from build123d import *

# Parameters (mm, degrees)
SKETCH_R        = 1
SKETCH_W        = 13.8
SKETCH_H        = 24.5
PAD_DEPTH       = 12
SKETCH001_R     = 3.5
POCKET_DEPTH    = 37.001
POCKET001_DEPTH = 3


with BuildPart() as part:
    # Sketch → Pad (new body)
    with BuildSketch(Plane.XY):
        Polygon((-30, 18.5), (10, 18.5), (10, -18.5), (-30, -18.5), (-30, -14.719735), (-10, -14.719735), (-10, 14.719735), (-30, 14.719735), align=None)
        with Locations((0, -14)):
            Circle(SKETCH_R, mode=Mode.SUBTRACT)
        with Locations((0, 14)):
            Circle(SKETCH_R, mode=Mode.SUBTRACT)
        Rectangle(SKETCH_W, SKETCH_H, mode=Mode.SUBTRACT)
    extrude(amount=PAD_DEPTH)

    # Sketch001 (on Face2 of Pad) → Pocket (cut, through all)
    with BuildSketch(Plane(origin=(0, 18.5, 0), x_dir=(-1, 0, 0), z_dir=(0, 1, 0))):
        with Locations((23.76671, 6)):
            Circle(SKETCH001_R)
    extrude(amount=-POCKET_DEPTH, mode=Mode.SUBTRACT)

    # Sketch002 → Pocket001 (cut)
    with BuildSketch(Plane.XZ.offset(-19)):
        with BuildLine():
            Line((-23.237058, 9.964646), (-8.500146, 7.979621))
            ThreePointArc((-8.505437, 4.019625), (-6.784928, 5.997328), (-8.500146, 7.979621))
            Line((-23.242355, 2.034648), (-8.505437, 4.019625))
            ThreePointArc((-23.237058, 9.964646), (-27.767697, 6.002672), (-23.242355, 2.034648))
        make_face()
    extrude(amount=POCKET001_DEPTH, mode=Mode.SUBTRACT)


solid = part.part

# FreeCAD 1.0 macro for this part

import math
import FreeCAD as App
import Part
import Sketcher


def add_polygon(sketch, points):
    """Adds a closed chain of lines whose ends are joined by coincident constraints."""
    first, n = sketch.GeometryCount, len(points)
    for a, b in zip(points, points[1:] + points[:1]):
        sketch.addGeometry(Part.LineSegment(App.Vector(*a, 0), App.Vector(*b, 0)), False)
    for i in range(n):
        sketch.addConstraint(Sketcher.Constraint("Coincident", first + i, 2, first + (i + 1) % n, 1))

doc = App.newDocument("Part")
params = doc.addObject("Spreadsheet::Sheet", "Params")
for row, (alias, value) in enumerate([
    ("sketch1_diameter", "2 mm"),
    ("sketch1_width", "40 mm"),
    ("sketch1_width2", "20 mm"),
    ("sketch1_height", "37 mm"),
    ("sketch1_width3", "13.8 mm"),
    ("pad1_length", "12 mm"),
    ("sketch2_diameter", "7 mm"),
    ("sketch3_radius", "4 mm"),
    ("sketch3_radius2", "2 mm"),
    ("sketch3_length", "14.87 mm"),
    ("pocket2_length", "3 mm"),
], start=1):
    params.set(f"A{row}", alias)
    params.set(f"B{row}", "=" + value)
    params.setAlias(f"B{row}", alias)

body = doc.addObject("PartDesign::Body", "Body")

# Sketch on XY plane
sketch1 = body.newObject("Sketcher::SketchObject", "Sketch")
sketch1.AttachmentSupport = (doc.getObject("XY_Plane"), [""])
sketch1.MapMode = "FlatFace"
add_polygon(sketch1, [(10, 18.5), (-30, 18.5), (-30, 14.7), (-10, 14.7), (-10, -14.7), (-30, -14.7), (-30, -18.5), (10, -18.5)])  # lines 0-7
sketch1.addGeometry(Part.Circle(App.Vector(0, -14, 0), App.Vector(0, 0, 1), 1), False)  # 8
add_polygon(sketch1, [(-6.9, -12.2), (-6.9, 12.2), (6.9, 12.2), (6.9, -12.2)])  # lines 9-12
sketch1.addGeometry(Part.Circle(App.Vector(0, 14, 0), App.Vector(0, 0, 1), 1), False)  # 13
sketch1.addConstraint([
    Sketcher.Constraint("Horizontal", 0),
    Sketcher.Constraint("Vertical", 1),
    Sketcher.Constraint("Horizontal", 2),
    Sketcher.Constraint("Vertical", 3),
    Sketcher.Constraint("Horizontal", 4),
    Sketcher.Constraint("Vertical", 5),
    Sketcher.Constraint("Horizontal", 6),
    Sketcher.Constraint("Vertical", 7),
    Sketcher.Constraint("Vertical", 9),
    Sketcher.Constraint("Horizontal", 10),
    Sketcher.Constraint("Vertical", 11),
    Sketcher.Constraint("Horizontal", 12),
    Sketcher.Constraint("Equal", 8, 13),
    Sketcher.Constraint("Symmetric", 8, 3, 13, 3, -1, 1),
    Sketcher.Constraint("Symmetric", 9, 2, 11, 2, -1, 1),
    Sketcher.Constraint("Symmetric", 1, 2, 4, 2, -1),
    Sketcher.Constraint("PointOnObject", 8, 3, -2),
    Sketcher.Constraint("Equal", 1, 5),
    Sketcher.Constraint("Diameter", 8, 2.0),
    Sketcher.Constraint("DistanceX", 0, 2, 0, 1, 40.0),
    Sketcher.Constraint("DistanceX", 2, 1, 2, 2, 20.0),
    Sketcher.Constraint("DistanceY", 7, 1, 7, 2, 37.0),
    Sketcher.Constraint("DistanceX", 10, 1, 10, 2, 13.8),
    Sketcher.Constraint("DistanceY", 9, 1, 9, 2, 24.5),
    Sketcher.Constraint("DistanceY", 8, 3, -1, 1, 14.0),
    Sketcher.Constraint("DistanceX", 0, 2, -1, 1, 30.0),
    Sketcher.Constraint("DistanceY", 3, 2, 3, 1, 29.43947),
])
sketch1.setExpression("Constraints[30]", "Params.sketch1_diameter")
sketch1.setExpression("Constraints[31]", "Params.sketch1_width")
sketch1.setExpression("Constraints[32]", "Params.sketch1_width2")
sketch1.setExpression("Constraints[33]", "Params.sketch1_height")
sketch1.setExpression("Constraints[34]", "Params.sketch1_width3")
pad1 = body.newObject("PartDesign::Pad", "Pad")
pad1.Profile = sketch1
pad1.setExpression("Length", "Params.pad1_length")

# Sketch on XZ plane
sketch2 = body.newObject("Sketcher::SketchObject", "Sketch001")
sketch2.AttachmentSupport = (doc.getObject("XZ_Plane"), [""])
sketch2.MapMode = "FlatFace"
sketch2.AttachmentOffset = App.Placement(App.Vector(0, 0, -18.5), App.Rotation())
sketch2.addGeometry(Part.Circle(App.Vector(-23.8, 6, 0), App.Vector(0, 0, 1), 3.5), False)
sketch2.addConstraint([
    Sketcher.Constraint("Diameter", 0, 7.0),
    Sketcher.Constraint("DistanceY", -1, 1, 0, 3, 6.0),
    Sketcher.Constraint("DistanceX", 0, 3, -1, 1, 23.76671),
])
sketch2.setExpression("Constraints[0]", "Params.sketch2_diameter")
pocket1 = body.newObject("PartDesign::Pocket", "Pocket")
pocket1.Profile = sketch2
pocket1.Type = "ThroughAll"
pocket1.Reversed = True

# Sketch on XZ plane
sketch3 = body.newObject("Sketcher::SketchObject", "Sketch002")
sketch3.AttachmentSupport = (doc.getObject("XZ_Plane"), [""])
sketch3.MapMode = "FlatFace"
sketch3.AttachmentOffset = App.Placement(App.Vector(0, 0, -19), App.Rotation())
sketch3.addGeometry([
    Part.LineSegment(App.Vector(-8.5, 8, 0), App.Vector(-23.2, 10, 0)),
    Part.ArcOfCircle(Part.Circle(App.Vector(-23.8, 6, 0), App.Vector(0, 0, 1), 4), math.radians(82), math.radians(278)),
    Part.LineSegment(App.Vector(-23.2, 2, 0), App.Vector(-8.5, 4, 0)),
    Part.ArcOfCircle(Part.Circle(App.Vector(-8.8, 6, 0), App.Vector(0, 0, 1), 2), math.radians(-82), math.radians(82)),
], False)
sketch3.addConstraint([
    Sketcher.Constraint("Coincident", 0, 2, 1, 1),
    Sketcher.Constraint("Coincident", 1, 2, 2, 1),
    Sketcher.Constraint("Coincident", 2, 2, 3, 1),
    Sketcher.Constraint("Coincident", 3, 2, 0, 1),
    Sketcher.Constraint("Horizontal", 1, 3, 3, 3),
    Sketcher.Constraint("Equal", 0, 2),
    Sketcher.Constraint("Radius", 1, 4.0),
    Sketcher.Constraint("Radius", 3, 2.0),
    Sketcher.Constraint("DistanceY", -1, 1, 1, 3, 6.0),
    Sketcher.Constraint("Distance", 0, 14.87),
    Sketcher.Constraint("DistanceY", 1, 2, 0, 2, 7.929998),
    Sketcher.Constraint("DistanceX", 0, 2, -1, 1, 23.237058),
    Sketcher.Constraint("DistanceY", -1, 1, 3, 2, 7.979621),
    Sketcher.Constraint("DistanceX", 1, 3, 0, 2, 0.53064),
])
sketch3.setExpression("Constraints[6]", "Params.sketch3_radius")
sketch3.setExpression("Constraints[7]", "Params.sketch3_radius2")
sketch3.setExpression("Constraints[9]", "Params.sketch3_length")
pocket2 = body.newObject("PartDesign::Pocket", "Pocket001")
pocket2.Profile = sketch3
pocket2.setExpression("Length", "Params.pocket2_length")
pocket2.Reversed = True

doc.recompute()
